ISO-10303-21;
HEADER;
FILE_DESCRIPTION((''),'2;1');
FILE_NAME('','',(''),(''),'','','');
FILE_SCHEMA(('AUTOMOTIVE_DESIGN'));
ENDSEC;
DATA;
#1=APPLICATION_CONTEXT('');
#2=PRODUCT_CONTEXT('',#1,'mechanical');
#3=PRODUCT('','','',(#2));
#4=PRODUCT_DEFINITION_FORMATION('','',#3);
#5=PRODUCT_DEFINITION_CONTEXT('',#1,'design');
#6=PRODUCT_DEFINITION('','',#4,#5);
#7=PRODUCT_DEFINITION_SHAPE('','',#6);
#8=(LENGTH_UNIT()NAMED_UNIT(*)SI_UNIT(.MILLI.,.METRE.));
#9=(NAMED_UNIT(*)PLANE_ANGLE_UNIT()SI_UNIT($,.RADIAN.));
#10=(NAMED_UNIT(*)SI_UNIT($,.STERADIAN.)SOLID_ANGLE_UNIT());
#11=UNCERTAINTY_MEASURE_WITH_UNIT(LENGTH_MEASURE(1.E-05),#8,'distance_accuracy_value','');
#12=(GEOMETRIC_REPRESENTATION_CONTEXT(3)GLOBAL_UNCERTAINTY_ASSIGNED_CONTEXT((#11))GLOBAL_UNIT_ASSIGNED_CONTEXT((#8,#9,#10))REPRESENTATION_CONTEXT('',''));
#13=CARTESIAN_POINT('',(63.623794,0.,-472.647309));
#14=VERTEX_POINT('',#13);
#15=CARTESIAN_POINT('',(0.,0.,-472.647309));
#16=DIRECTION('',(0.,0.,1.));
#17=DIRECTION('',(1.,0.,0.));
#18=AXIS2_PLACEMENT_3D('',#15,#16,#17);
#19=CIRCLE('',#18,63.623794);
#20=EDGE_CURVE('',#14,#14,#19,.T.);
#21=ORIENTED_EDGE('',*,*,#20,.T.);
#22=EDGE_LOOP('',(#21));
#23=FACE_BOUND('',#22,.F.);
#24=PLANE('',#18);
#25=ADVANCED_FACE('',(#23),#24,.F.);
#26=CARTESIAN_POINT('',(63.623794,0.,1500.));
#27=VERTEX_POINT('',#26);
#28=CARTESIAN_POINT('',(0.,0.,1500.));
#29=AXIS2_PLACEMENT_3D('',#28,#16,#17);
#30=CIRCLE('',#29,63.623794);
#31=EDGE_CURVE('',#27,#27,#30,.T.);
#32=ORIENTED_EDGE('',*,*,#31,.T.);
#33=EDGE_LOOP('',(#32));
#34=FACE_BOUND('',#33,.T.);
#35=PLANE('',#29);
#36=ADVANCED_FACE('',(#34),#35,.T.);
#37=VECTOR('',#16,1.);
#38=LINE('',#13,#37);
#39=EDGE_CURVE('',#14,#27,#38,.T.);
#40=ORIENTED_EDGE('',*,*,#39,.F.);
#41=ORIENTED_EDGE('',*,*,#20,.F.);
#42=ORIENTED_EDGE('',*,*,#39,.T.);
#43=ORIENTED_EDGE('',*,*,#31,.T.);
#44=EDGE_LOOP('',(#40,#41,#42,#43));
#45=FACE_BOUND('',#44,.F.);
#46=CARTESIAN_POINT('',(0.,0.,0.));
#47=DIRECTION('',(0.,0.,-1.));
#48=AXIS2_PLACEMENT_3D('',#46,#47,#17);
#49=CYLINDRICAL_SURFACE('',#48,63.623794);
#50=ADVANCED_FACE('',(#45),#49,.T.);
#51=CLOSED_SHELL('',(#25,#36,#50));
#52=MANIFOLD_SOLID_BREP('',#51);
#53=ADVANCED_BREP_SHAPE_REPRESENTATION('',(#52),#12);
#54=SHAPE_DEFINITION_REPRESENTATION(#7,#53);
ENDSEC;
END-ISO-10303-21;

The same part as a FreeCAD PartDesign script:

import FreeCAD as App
import Part
import Sketcher

doc = App.newDocument("Part")
body = doc.addObject("PartDesign::Body", "Body")

# Sketch on XY plane
sketch1 = body.newObject("Sketcher::SketchObject", "Sketch")
sketch1.AttachmentSupport = (doc.getObject("XY_Plane"), [""])
sketch1.MapMode = "FlatFace"
sketch1.addGeometry(Part.Circle(App.Vector(0, 0, 0), App.Vector(0, 0, 1), 64), False)
sketch1.addConstraint([
    Sketcher.Constraint("Coincident", 0, 3, -1, 1),
    Sketcher.Constraint("Diameter", 0, 127.247588),
])
pad1 = body.newObject("PartDesign::Pad", "Pad")
pad1.Profile = sketch1
pad1.Length = 1500

# Sketch on XY plane
sketch2 = body.newObject("Sketcher::SketchObject", "Sketch001")
sketch2.AttachmentSupport = (doc.getObject("XY_Plane"), [""])
sketch2.MapMode = "FlatFace"
sketch2.AttachmentOffset = App.Placement(App.Vector(0, 0, 1500), App.Rotation())
sketch2.addGeometry(Part.Circle(App.Vector(0, 0, 0), App.Vector(0, 0, 1), 64), False)
sketch2.addConstraint([
    Sketcher.Constraint("Coincident", 0, 3, -1, 1),
    Sketcher.Constraint("Diameter", 0, 127.247588),
])
pad2 = body.newObject("PartDesign::Pad", "Pad001")
pad2.Profile = sketch2
pad2.Length = 1972.647309
pad2.Reversed = True

doc.recompute()
